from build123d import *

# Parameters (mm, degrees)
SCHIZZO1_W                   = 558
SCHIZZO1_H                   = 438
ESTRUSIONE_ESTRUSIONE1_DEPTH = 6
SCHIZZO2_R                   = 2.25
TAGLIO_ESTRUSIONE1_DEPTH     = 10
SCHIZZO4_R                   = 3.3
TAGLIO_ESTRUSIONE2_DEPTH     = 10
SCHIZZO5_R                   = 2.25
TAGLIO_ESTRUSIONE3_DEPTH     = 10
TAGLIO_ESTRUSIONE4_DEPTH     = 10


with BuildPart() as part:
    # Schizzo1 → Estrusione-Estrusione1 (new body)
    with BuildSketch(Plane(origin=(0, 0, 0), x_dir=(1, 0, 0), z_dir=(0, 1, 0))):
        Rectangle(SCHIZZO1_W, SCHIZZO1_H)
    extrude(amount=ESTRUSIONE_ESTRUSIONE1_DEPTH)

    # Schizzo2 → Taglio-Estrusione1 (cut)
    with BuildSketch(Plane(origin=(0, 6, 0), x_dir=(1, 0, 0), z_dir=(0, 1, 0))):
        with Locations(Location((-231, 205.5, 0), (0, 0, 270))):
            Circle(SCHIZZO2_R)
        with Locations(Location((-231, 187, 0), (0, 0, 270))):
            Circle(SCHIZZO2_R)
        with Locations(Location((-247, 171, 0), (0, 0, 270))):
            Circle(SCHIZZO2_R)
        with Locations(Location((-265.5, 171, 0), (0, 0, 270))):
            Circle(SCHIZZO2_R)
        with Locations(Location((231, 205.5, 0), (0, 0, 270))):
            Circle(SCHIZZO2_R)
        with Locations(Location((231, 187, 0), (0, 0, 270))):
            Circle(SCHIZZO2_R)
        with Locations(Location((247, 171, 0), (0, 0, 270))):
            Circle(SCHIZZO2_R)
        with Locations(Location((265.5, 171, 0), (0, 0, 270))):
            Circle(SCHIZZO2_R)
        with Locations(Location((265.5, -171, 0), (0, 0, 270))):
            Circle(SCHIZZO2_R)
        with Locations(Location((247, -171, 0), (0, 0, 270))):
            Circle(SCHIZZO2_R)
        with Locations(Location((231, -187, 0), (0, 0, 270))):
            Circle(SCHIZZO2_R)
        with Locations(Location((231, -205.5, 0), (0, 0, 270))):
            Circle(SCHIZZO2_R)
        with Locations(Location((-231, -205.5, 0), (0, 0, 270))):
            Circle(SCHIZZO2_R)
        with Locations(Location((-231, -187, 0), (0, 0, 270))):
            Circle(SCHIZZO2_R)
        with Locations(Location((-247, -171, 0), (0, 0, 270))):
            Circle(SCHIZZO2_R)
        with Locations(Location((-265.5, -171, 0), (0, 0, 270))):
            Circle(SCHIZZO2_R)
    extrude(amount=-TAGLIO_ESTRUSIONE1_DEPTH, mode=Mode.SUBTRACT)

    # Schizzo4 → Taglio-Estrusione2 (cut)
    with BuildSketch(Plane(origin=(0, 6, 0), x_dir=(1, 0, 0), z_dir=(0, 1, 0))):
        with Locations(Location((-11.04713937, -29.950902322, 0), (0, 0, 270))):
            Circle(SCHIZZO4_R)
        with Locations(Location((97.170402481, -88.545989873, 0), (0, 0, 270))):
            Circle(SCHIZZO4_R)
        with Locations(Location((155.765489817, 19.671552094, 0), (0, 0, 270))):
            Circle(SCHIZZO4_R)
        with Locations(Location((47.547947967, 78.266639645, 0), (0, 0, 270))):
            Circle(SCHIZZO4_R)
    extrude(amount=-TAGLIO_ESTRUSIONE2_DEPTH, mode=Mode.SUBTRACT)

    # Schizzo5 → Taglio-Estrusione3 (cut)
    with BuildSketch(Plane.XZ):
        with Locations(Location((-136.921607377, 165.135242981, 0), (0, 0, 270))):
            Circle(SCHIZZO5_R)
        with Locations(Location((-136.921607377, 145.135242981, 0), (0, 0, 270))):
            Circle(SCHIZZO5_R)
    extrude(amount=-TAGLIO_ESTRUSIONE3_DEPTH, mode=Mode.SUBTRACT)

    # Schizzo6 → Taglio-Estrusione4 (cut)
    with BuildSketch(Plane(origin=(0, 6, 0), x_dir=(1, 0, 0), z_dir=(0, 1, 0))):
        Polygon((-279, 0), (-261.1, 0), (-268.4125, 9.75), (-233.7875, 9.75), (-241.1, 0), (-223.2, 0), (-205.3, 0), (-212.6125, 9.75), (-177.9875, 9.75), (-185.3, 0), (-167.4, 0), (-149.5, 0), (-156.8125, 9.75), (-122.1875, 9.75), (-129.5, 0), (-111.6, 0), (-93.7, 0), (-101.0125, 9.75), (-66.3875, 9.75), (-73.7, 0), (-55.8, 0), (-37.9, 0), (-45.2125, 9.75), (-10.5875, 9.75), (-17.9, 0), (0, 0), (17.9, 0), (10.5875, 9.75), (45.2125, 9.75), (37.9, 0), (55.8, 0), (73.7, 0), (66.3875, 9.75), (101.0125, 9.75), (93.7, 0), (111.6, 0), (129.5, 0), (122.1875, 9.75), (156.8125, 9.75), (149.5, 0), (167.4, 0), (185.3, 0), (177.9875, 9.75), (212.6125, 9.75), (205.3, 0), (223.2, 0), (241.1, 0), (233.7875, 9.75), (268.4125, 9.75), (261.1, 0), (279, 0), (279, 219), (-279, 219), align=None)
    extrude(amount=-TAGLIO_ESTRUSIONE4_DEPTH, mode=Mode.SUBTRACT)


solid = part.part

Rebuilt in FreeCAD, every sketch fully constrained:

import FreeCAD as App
import Part
import Sketcher
from FreeCAD import Vector


def add_polygon(sketch, points):
    """Adds a closed chain of lines whose ends are joined by coincident constraints."""
    first, n = sketch.GeometryCount, len(points)
    for a, b in zip(points, points[1:] + points[:1]):
        sketch.addGeometry(Part.LineSegment(App.Vector(*a, 0), App.Vector(*b, 0)), False)
    for i in range(n):
        sketch.addConstraint(Sketcher.Constraint("Coincident", first + i, 2, first + (i + 1) % n, 1))

doc = App.newDocument("Part")
body = doc.addObject("PartDesign::Body", "Body")

sketch1 = body.newObject("Sketcher::SketchObject", "Sketch")
sketch1.AttachmentSupport = (doc.getObject("XZ_Plane"), [""])
sketch1.MapMode = "FlatFace"
add_polygon(sketch1, [(-279, -219), (-279, 219), (279, 219), (279, -219)])
sketch1.addConstraint(Sketcher.Constraint("Vertical", 0))
sketch1.addConstraint(Sketcher.Constraint("Horizontal", 1))
sketch1.addConstraint(Sketcher.Constraint("Vertical", 2))
sketch1.addConstraint(Sketcher.Constraint("Horizontal", 3))
sketch1.addConstraint(Sketcher.Constraint("Symmetric", 0, 2, 2, 2, -1, 1))
sketch1.addConstraint(Sketcher.Constraint("DistanceX", 1, 1, 1, 2, 558.0))
sketch1.addConstraint(Sketcher.Constraint("DistanceY", 0, 1, 0, 2, 438.0))
pad1 = body.newObject("PartDesign::Pad", "Pad")
pad1.Profile = sketch1
pad1.Length = 6
pad1.Reversed = True

sketch2 = body.newObject("Sketcher::SketchObject", "Sketch001")
sketch2.AttachmentSupport = (doc.getObject("XZ_Plane"), [""])
sketch2.MapMode = "FlatFace"
sketch2.AttachmentOffset = App.Placement(Vector(0, 0, -6), App.Rotation())
sketch2.addGeometry(Part.Circle(Vector(-231, -205.5, 0), Vector(0, 0, 1), 2.25), False)
sketch2.addGeometry(Part.Circle(Vector(-231, -187, 0), Vector(0, 0, 1), 2.25), False)
sketch2.addGeometry(Part.Circle(Vector(-247, -171, 0), Vector(0, 0, 1), 2.25), False)
sketch2.addGeometry(Part.Circle(Vector(-265.5, -171, 0), Vector(0, 0, 1), 2.25), False)
sketch2.addGeometry(Part.Circle(Vector(231, -205.5, 0), Vector(0, 0, 1), 2.25), False)
sketch2.addGeometry(Part.Circle(Vector(231, -187, 0), Vector(0, 0, 1), 2.25), False)
sketch2.addGeometry(Part.Circle(Vector(247, -171, 0), Vector(0, 0, 1), 2.25), False)
sketch2.addGeometry(Part.Circle(Vector(265.5, -171, 0), Vector(0, 0, 1), 2.25), False)
sketch2.addGeometry(Part.Circle(Vector(265.5, 171, 0), Vector(0, 0, 1), 2.25), False)
sketch2.addGeometry(Part.Circle(Vector(247, 171, 0), Vector(0, 0, 1), 2.25), False)
sketch2.addGeometry(Part.Circle(Vector(231, 187, 0), Vector(0, 0, 1), 2.25), False)
sketch2.addGeometry(Part.Circle(Vector(231, 205.5, 0), Vector(0, 0, 1), 2.25), False)
sketch2.addGeometry(Part.Circle(Vector(-231, 205.5, 0), Vector(0, 0, 1), 2.25), False)
sketch2.addGeometry(Part.Circle(Vector(-231, 187, 0), Vector(0, 0, 1), 2.25), False)
sketch2.addGeometry(Part.Circle(Vector(-247, 171, 0), Vector(0, 0, 1), 2.25), False)
sketch2.addGeometry(Part.Circle(Vector(-265.5, 171, 0), Vector(0, 0, 1), 2.25), False)
sketch2.addConstraint(Sketcher.Constraint("Equal", 0, 1))
sketch2.addConstraint(Sketcher.Constraint("Equal", 1, 2))
sketch2.addConstraint(Sketcher.Constraint("Equal", 2, 3))
sketch2.addConstraint(Sketcher.Constraint("Equal", 3, 4))
sketch2.addConstraint(Sketcher.Constraint("Equal", 4, 5))
sketch2.addConstraint(Sketcher.Constraint("Equal", 5, 6))
sketch2.addConstraint(Sketcher.Constraint("Equal", 6, 7))
sketch2.addConstraint(Sketcher.Constraint("Equal", 7, 8))
sketch2.addConstraint(Sketcher.Constraint("Equal", 8, 9))
sketch2.addConstraint(Sketcher.Constraint("Equal", 9, 10))
sketch2.addConstraint(Sketcher.Constraint("Equal", 10, 11))
sketch2.addConstraint(Sketcher.Constraint("Equal", 11, 12))
sketch2.addConstraint(Sketcher.Constraint("Equal", 12, 13))
sketch2.addConstraint(Sketcher.Constraint("Equal", 13, 14))
sketch2.addConstraint(Sketcher.Constraint("Equal", 14, 15))
sketch2.addConstraint(Sketcher.Constraint("Symmetric", 3, 3, 8, 3, -1, 1))
sketch2.addConstraint(Sketcher.Constraint("Symmetric", 2, 3, 9, 3, -1, 1))
sketch2.addConstraint(Sketcher.Constraint("Symmetric", 1, 3, 10, 3, -1, 1))
sketch2.addConstraint(Sketcher.Constraint("Symmetric", 0, 3, 11, 3, -1, 1))
sketch2.addConstraint(Sketcher.Constraint("Symmetric", 4, 3, 12, 3, -1, 1))
sketch2.addConstraint(Sketcher.Constraint("Symmetric", 5, 3, 13, 3, -1, 1))
sketch2.addConstraint(Sketcher.Constraint("Symmetric", 6, 3, 14, 3, -1, 1))
sketch2.addConstraint(Sketcher.Constraint("Symmetric", 7, 3, 15, 3, -1, 1))
sketch2.addConstraint(Sketcher.Constraint("Symmetric", 0, 3, 4, 3, -2))
sketch2.addConstraint(Sketcher.Constraint("Symmetric", 1, 3, 5, 3, -2))
sketch2.addConstraint(Sketcher.Constraint("Symmetric", 2, 3, 6, 3, -2))
sketch2.addConstraint(Sketcher.Constraint("Symmetric", 3, 3, 7, 3, -2))
sketch2.addConstraint(Sketcher.Constraint("Horizontal", 2, 3, 3, 3))
sketch2.addConstraint(Sketcher.Constraint("Vertical", 0, 3, 1, 3))
sketch2.addConstraint(Sketcher.Constraint("Diameter", 0, 4.5))
sketch2.addConstraint(Sketcher.Constraint("DistanceX", 0, 3, -1, 1, 231.0))
sketch2.addConstraint(Sketcher.Constraint("DistanceY", 1, 3, -1, 1, 187.0))
sketch2.addConstraint(Sketcher.Constraint("DistanceX", 2, 3, -1, 1, 247.0))
sketch2.addConstraint(Sketcher.Constraint("DistanceY", 2, 3, -1, 1, 171.0))
sketch2.addConstraint(Sketcher.Constraint("DistanceY", 0, 3, 12, 3, 411.0))
sketch2.addConstraint(Sketcher.Constraint("DistanceX", 3, 3, -1, 1, 265.5))
pocket1 = body.newObject("PartDesign::Pocket", "Pocket")
pocket1.Profile = sketch2
pocket1.Length = 10
pocket1.Reversed = True

sketch3 = body.newObject("Sketcher::SketchObject", "Sketch002")
sketch3.AttachmentSupport = (doc.getObject("XZ_Plane"), [""])
sketch3.MapMode = "FlatFace"
sketch3.AttachmentOffset = App.Placement(Vector(0, 0, -6), App.Rotation())
sketch3.addGeometry(Part.Circle(Vector(-11.047139, 29.950902, 0), Vector(0, 0, 1), 3.3), False)
sketch3.addGeometry(Part.Circle(Vector(97.170402, 88.54599, 0), Vector(0, 0, 1), 3.3), False)
sketch3.addGeometry(Part.Circle(Vector(155.76549, -19.671552, 0), Vector(0, 0, 1), 3.3), False)
sketch3.addGeometry(Part.Circle(Vector(47.547948, -78.26664, 0), Vector(0, 0, 1), 3.3), False)
sketch3.addConstraint(Sketcher.Constraint("Equal", 0, 1))
sketch3.addConstraint(Sketcher.Constraint("Equal", 1, 2))
sketch3.addConstraint(Sketcher.Constraint("Equal", 2, 3))
sketch3.addConstraint(Sketcher.Constraint("Diameter", 0, 6.6))
sketch3.addConstraint(Sketcher.Constraint("DistanceX", 0, 3, -1, 1, 11.047139))
sketch3.addConstraint(Sketcher.Constraint("DistanceY", -1, 1, 1, 3, 88.54599))
sketch3.addConstraint(Sketcher.Constraint("DistanceX", -1, 1, 2, 3, 155.76549))
sketch3.addConstraint(Sketcher.Constraint("DistanceY", 3, 3, -1, 1, 78.26664))
sketch3.addConstraint(Sketcher.Constraint("DistanceX", 0, 3, 1, 3, 108.217542))
sketch3.addConstraint(Sketcher.Constraint("DistanceY", 2, 3, 1, 3, 108.217542))
sketch3.addConstraint(Sketcher.Constraint("DistanceX", 3, 3, 2, 3, 108.217542))
sketch3.addConstraint(Sketcher.Constraint("DistanceY", 3, 3, 0, 3, 108.217542))
pocket2 = body.newObject("PartDesign::Pocket", "Pocket001")
pocket2.Profile = sketch3
pocket2.Length = 10
pocket2.Reversed = True

sketch4 = body.newObject("Sketcher::SketchObject", "Sketch003")
sketch4.AttachmentSupport = (doc.getObject("XZ_Plane"), [""])
sketch4.MapMode = "FlatFace"
sketch4.addGeometry(Part.Circle(Vector(-136.921607, 165.135243, 0), Vector(0, 0, 1), 2.25), False)
sketch4.addGeometry(Part.Circle(Vector(-136.921607, 145.135243, 0), Vector(0, 0, 1), 2.25), False)
sketch4.addConstraint(Sketcher.Constraint("Equal", 0, 1))
sketch4.addConstraint(Sketcher.Constraint("Vertical", 0, 3, 1, 3))
sketch4.addConstraint(Sketcher.Constraint("Diameter", 0, 4.5))
sketch4.addConstraint(Sketcher.Constraint("DistanceY", 1, 3, 0, 3, 20.0))
sketch4.addConstraint(Sketcher.Constraint("DistanceX", 0, 3, -1, 1, 136.921607))
sketch4.addConstraint(Sketcher.Constraint("DistanceY", -1, 1, 0, 3, 165.135243))
pocket3 = body.newObject("PartDesign::Pocket", "Pocket002")
pocket3.Profile = sketch4
pocket3.Length = 10

sketch5 = body.newObject("Sketcher::SketchObject", "Sketch004")
sketch5.AttachmentSupport = (doc.getObject("XZ_Plane"), [""])
sketch5.MapMode = "FlatFace"
sketch5.AttachmentOffset = App.Placement(Vector(0, 0, -6), App.Rotation())
add_polygon(sketch5, [(-279, 0), (-261.1, 0), (-268.4125, -9.75), (-233.7875, -9.75), (-241.1, 0), (-205.3, 0), (-212.6125, -9.75), (-177.9875, -9.75), (-185.3, 0), (-149.5, 0), (-156.8125, -9.75), (-122.1875, -9.75), (-129.5, 0), (-93.7, 0), (-101.0125, -9.75), (-66.3875, -9.75), (-73.7, 0), (-37.9, 0), (-45.2125, -9.75), (-10.5875, -9.75), (-17.9, 0), (17.9, 0), (10.5875, -9.75), (45.2125, -9.75), (37.9, 0), (73.7, 0), (66.3875, -9.75), (101.0125, -9.75), (93.7, 0), (129.5, 0), (122.1875, -9.75), (156.8125, -9.75), (149.5, 0), (185.3, 0), (177.9875, -9.75), (212.6125, -9.75), (205.3, 0), (241.1, 0), (233.7875, -9.75), (268.4125, -9.75), (261.1, 0), (279, 0), (279, -219), (-279, -219)])
sketch5.addConstraint(Sketcher.Constraint("Horizontal", 0))
sketch5.addConstraint(Sketcher.Constraint("Horizontal", 2))
sketch5.addConstraint(Sketcher.Constraint("Horizontal", 4))
sketch5.addConstraint(Sketcher.Constraint("Horizontal", 6))
sketch5.addConstraint(Sketcher.Constraint("Horizontal", 8))
sketch5.addConstraint(Sketcher.Constraint("Horizontal", 10))
sketch5.addConstraint(Sketcher.Constraint("Horizontal", 12))
sketch5.addConstraint(Sketcher.Constraint("Horizontal", 14))
sketch5.addConstraint(Sketcher.Constraint("Horizontal", 16))
sketch5.addConstraint(Sketcher.Constraint("Horizontal", 18))
sketch5.addConstraint(Sketcher.Constraint("Horizontal", 20))
sketch5.addConstraint(Sketcher.Constraint("Horizontal", 22))
sketch5.addConstraint(Sketcher.Constraint("Horizontal", 24))
sketch5.addConstraint(Sketcher.Constraint("Horizontal", 26))
sketch5.addConstraint(Sketcher.Constraint("Horizontal", 28))
sketch5.addConstraint(Sketcher.Constraint("Horizontal", 30))
sketch5.addConstraint(Sketcher.Constraint("Horizontal", 32))
sketch5.addConstraint(Sketcher.Constraint("Horizontal", 34))
sketch5.addConstraint(Sketcher.Constraint("Horizontal", 36))
sketch5.addConstraint(Sketcher.Constraint("Horizontal", 38))
sketch5.addConstraint(Sketcher.Constraint("Horizontal", 40))
sketch5.addConstraint(Sketcher.Constraint("Vertical", 41))
sketch5.addConstraint(Sketcher.Constraint("Horizontal", 42))
sketch5.addConstraint(Sketcher.Constraint("Vertical", 43))
sketch5.addConstraint(Sketcher.Constraint("Symmetric", 19, 2, 20, 2, -1, 1))
sketch5.addConstraint(Sketcher.Constraint("Symmetric", 16, 2, 23, 2, -1, 1))
sketch5.addConstraint(Sketcher.Constraint("Symmetric", 12, 2, 27, 2, -1, 1))
sketch5.addConstraint(Sketcher.Constraint("Symmetric", 8, 2, 31, 2, -1, 1))
sketch5.addConstraint(Sketcher.Constraint("Symmetric", 4, 2, 35, 2, -1, 1))
sketch5.addConstraint(Sketcher.Constraint("Symmetric", 0, 2, 39, 2, -1, 1))
sketch5.addConstraint(Sketcher.Constraint("Symmetric", 18, 2, 21, 2, -2))
sketch5.addConstraint(Sketcher.Constraint("Symmetric", 15, 2, 24, 2, -2))
sketch5.addConstraint(Sketcher.Constraint("Symmetric", 14, 2, 25, 2, -2))
sketch5.addConstraint(Sketcher.Constraint("Symmetric", 11, 2, 28, 2, -2))
sketch5.addConstraint(Sketcher.Constraint("Symmetric", 10, 2, 29, 2, -2))
sketch5.addConstraint(Sketcher.Constraint("Symmetric", 7, 2, 32, 2, -2))
sketch5.addConstraint(Sketcher.Constraint("Symmetric", 6, 2, 33, 2, -2))
sketch5.addConstraint(Sketcher.Constraint("Symmetric", 3, 2, 36, 2, -2))
sketch5.addConstraint(Sketcher.Constraint("Symmetric", 2, 2, 37, 2, -2))
sketch5.addConstraint(Sketcher.Constraint("Symmetric", 40, 2, 43, 2, -2))
sketch5.addConstraint(Sketcher.Constraint("Parallel", 1, 5))
sketch5.addConstraint(Sketcher.Constraint("Parallel", 3, 7))
sketch5.addConstraint(Sketcher.Constraint("Parallel", 5, 9))
sketch5.addConstraint(Sketcher.Constraint("Parallel", 7, 11))
sketch5.addConstraint(Sketcher.Constraint("Parallel", 9, 13))
sketch5.addConstraint(Sketcher.Constraint("Parallel", 11, 15))
sketch5.addConstraint(Sketcher.Constraint("Parallel", 13, 17))
sketch5.addConstraint(Sketcher.Constraint("Parallel", 15, 19))
sketch5.addConstraint(Sketcher.Constraint("Parallel", 17, 21))
sketch5.addConstraint(Sketcher.Constraint("Parallel", 19, 23))
sketch5.addConstraint(Sketcher.Constraint("Parallel", 23, 27))
sketch5.addConstraint(Sketcher.Constraint("Parallel", 27, 31))
sketch5.addConstraint(Sketcher.Constraint("Parallel", 31, 35))
sketch5.addConstraint(Sketcher.Constraint("Parallel", 35, 39))
sketch5.addConstraint(Sketcher.Constraint("Horizontal", 2, 2, 5, 2))
sketch5.addConstraint(Sketcher.Constraint("Horizontal", 6, 2, 9, 2))
sketch5.addConstraint(Sketcher.Constraint("Horizontal", 10, 2, 13, 2))
sketch5.addConstraint(Sketcher.Constraint("Horizontal", 14, 2, 17, 2))
sketch5.addConstraint(Sketcher.Constraint("Equal", 2, 6))
sketch5.addConstraint(Sketcher.Constraint("Equal", 4, 8))
sketch5.addConstraint(Sketcher.Constraint("Equal", 6, 10))
sketch5.addConstraint(Sketcher.Constraint("Equal", 8, 12))
sketch5.addConstraint(Sketcher.Constraint("Equal", 10, 14))
sketch5.addConstraint(Sketcher.Constraint("Equal", 12, 16))
sketch5.addConstraint(Sketcher.Constraint("Equal", 14, 18))
sketch5.addConstraint(Sketcher.Constraint("Equal", 16, 20))
sketch5.addConstraint(Sketcher.Constraint("DistanceX", 42, 2, 42, 1, 558.0))
sketch5.addConstraint(Sketcher.Constraint("DistanceY", 41, 2, 41, 1, 219.0))
sketch5.addConstraint(Sketcher.Constraint("DistanceX", 0, 1, 0, 2, 17.9))
sketch5.addConstraint(Sketcher.Constraint("DistanceX", 4, 1, 4, 2, 35.8))
sketch5.addConstraint(Sketcher.Constraint("DistanceX", 2, 1, 2, 2, 34.625))
sketch5.addConstraint(Sketcher.Constraint("DistanceY", 1, 2, -1, 1, 9.75))
pocket4 = body.newObject("PartDesign::Pocket", "Pocket003")
pocket4.Profile = sketch5
pocket4.Length = 10
pocket4.Reversed = True

doc.recompute()
